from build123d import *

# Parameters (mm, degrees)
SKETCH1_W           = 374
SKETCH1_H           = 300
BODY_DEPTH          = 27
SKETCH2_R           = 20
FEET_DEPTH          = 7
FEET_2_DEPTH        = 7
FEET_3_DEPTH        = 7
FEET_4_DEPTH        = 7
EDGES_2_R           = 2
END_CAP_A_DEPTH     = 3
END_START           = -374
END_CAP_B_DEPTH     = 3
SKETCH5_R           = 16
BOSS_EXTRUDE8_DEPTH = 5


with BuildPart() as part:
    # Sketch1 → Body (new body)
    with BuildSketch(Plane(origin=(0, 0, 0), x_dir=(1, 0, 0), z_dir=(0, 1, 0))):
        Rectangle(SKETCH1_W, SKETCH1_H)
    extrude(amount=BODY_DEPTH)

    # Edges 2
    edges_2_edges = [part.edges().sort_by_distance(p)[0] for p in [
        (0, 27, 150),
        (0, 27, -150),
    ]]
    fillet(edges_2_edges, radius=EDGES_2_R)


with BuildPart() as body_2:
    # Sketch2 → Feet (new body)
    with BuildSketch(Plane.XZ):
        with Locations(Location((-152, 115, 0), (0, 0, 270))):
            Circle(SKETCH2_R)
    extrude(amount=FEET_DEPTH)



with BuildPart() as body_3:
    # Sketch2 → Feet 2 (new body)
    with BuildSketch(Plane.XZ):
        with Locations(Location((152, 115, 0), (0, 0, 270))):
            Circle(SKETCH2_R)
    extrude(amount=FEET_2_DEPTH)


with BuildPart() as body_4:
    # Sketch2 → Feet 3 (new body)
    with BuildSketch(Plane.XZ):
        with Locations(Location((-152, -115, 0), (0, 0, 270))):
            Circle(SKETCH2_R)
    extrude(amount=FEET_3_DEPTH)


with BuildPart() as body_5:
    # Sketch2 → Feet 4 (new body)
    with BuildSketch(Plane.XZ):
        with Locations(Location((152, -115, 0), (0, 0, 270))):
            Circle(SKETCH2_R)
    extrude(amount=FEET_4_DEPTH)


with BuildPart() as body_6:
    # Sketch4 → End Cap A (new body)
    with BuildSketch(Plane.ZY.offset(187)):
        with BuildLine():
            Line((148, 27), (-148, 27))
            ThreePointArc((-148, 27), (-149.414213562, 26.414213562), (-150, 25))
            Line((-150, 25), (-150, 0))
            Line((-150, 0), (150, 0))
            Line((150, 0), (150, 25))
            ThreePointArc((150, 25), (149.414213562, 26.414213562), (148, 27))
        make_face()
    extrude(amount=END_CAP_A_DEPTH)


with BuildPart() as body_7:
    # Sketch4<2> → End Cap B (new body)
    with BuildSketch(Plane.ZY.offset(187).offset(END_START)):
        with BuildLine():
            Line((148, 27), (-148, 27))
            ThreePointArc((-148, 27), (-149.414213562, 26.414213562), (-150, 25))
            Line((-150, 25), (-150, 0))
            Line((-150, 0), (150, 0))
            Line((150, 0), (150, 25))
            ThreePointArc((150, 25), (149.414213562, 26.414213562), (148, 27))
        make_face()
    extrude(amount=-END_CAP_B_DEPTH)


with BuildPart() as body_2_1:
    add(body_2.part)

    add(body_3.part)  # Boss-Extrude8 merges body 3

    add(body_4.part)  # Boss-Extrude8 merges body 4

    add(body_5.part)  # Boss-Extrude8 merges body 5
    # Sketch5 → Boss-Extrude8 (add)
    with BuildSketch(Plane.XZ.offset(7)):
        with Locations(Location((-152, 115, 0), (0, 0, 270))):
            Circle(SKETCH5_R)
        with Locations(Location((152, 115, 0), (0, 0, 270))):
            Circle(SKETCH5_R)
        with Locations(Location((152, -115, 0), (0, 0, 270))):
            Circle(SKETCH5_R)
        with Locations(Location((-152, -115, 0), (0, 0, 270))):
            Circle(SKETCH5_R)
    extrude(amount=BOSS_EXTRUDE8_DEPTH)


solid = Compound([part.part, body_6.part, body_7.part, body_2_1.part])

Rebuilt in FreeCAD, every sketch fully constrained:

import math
import FreeCAD as App
import Part
import Sketcher
from FreeCAD import Vector


def edges_at(feature, points):
    """Names of the edges that pass closest to the given points."""
    edges = feature.Shape.Edges
    near = lambda p: min(range(len(edges)), key=lambda i: edges[i].distToShape(Part.Vertex(*p))[0])
    return sorted({f"Edge{near(p) + 1}" for p in points})

doc = App.newDocument("Part")
body = doc.addObject("PartDesign::Body", "Body")

# Sketch on XZ plane
sketch1 = body.newObject("Sketcher::SketchObject", "Sketch")
sketch1.AttachmentSupport = (doc.getObject("XZ_Plane"), [""])
sketch1.MapMode = "FlatFace"
sketch1.addGeometry(Part.LineSegment(Vector(-187, -150, 0), Vector(-187, 150, 0)), False)
sketch1.addGeometry(Part.LineSegment(Vector(-187, 150, 0), Vector(187, 150, 0)), False)
sketch1.addGeometry(Part.LineSegment(Vector(187, 150, 0), Vector(187, -150, 0)), False)
sketch1.addGeometry(Part.LineSegment(Vector(187, -150, 0), Vector(-187, -150, 0)), False)
sketch1.addConstraint(Sketcher.Constraint("Coincident", 0, 2, 1, 1))
sketch1.addConstraint(Sketcher.Constraint("Coincident", 1, 2, 2, 1))
sketch1.addConstraint(Sketcher.Constraint("Coincident", 2, 2, 3, 1))
sketch1.addConstraint(Sketcher.Constraint("Coincident", 3, 2, 0, 1))
sketch1.addConstraint(Sketcher.Constraint("Vertical", 0))
sketch1.addConstraint(Sketcher.Constraint("Horizontal", 1))
sketch1.addConstraint(Sketcher.Constraint("Vertical", 2))
sketch1.addConstraint(Sketcher.Constraint("Horizontal", 3))
sketch1.addConstraint(Sketcher.Constraint("Symmetric", 0, 2, 2, 2, -1, 1))
sketch1.addConstraint(Sketcher.Constraint("DistanceX", 1, 1, 1, 2, 374.0))
sketch1.addConstraint(Sketcher.Constraint("DistanceY", 0, 1, 0, 2, 300.0))
pad1 = body.newObject("PartDesign::Pad", "Pad")
pad1.Profile = sketch1
pad1.Length = 27
pad1.Reversed = True
doc.recompute()

fillet = body.newObject("PartDesign::Fillet", "Fillet")
fillet.Base = (pad1, edges_at(pad1, [(0, 27, 150), (0, 27, -150)]))
fillet.Radius = 2
body2 = doc.addObject("PartDesign::Body", "Body001")

# Sketch on XZ plane
sketch2 = body2.newObject("Sketcher::SketchObject", "Sketch001")
sketch2.AttachmentSupport = (doc.getObject("XZ_Plane001"), [""])
sketch2.MapMode = "FlatFace"
sketch2.addGeometry(Part.Circle(Vector(-152, 115, 0), Vector(0, 0, 1), 20), False)
sketch2.addConstraint(Sketcher.Constraint("Diameter", 0, 40.0))
sketch2.addConstraint(Sketcher.Constraint("DistanceX", 0, 3, -1, 1, 152.0))
sketch2.addConstraint(Sketcher.Constraint("DistanceY", -1, 1, 0, 3, 115.0))
pad2 = body2.newObject("PartDesign::Pad", "Pad001")
pad2.Profile = sketch2
pad2.Length = 7
body3 = doc.addObject("PartDesign::Body", "Body002")

# Sketch on XZ plane
sketch3 = body3.newObject("Sketcher::SketchObject", "Sketch002")
sketch3.AttachmentSupport = (doc.getObject("XZ_Plane002"), [""])
sketch3.MapMode = "FlatFace"
sketch3.addGeometry(Part.Circle(Vector(152, 115, 0), Vector(0, 0, 1), 20), False)
sketch3.addConstraint(Sketcher.Constraint("Diameter", 0, 40.0))
sketch3.addConstraint(Sketcher.Constraint("DistanceX", -1, 1, 0, 3, 152.0))
sketch3.addConstraint(Sketcher.Constraint("DistanceY", -1, 1, 0, 3, 115.0))
pad3 = body3.newObject("PartDesign::Pad", "Pad002")
pad3.Profile = sketch3
pad3.Length = 7
body4 = doc.addObject("PartDesign::Body", "Body003")

# Sketch on XZ plane
sketch4 = body4.newObject("Sketcher::SketchObject", "Sketch003")
sketch4.AttachmentSupport = (doc.getObject("XZ_Plane003"), [""])
sketch4.MapMode = "FlatFace"
sketch4.addGeometry(Part.Circle(Vector(-152, -115, 0), Vector(0, 0, 1), 20), False)
sketch4.addConstraint(Sketcher.Constraint("Diameter", 0, 40.0))
sketch4.addConstraint(Sketcher.Constraint("DistanceX", 0, 3, -1, 1, 152.0))
sketch4.addConstraint(Sketcher.Constraint("DistanceY", 0, 3, -1, 1, 115.0))
pad4 = body4.newObject("PartDesign::Pad", "Pad003")
pad4.Profile = sketch4
pad4.Length = 7
body5 = doc.addObject("PartDesign::Body", "Body004")

# Sketch on XZ plane
sketch5 = body5.newObject("Sketcher::SketchObject", "Sketch004")
sketch5.AttachmentSupport = (doc.getObject("XZ_Plane004"), [""])
sketch5.MapMode = "FlatFace"
sketch5.addGeometry(Part.Circle(Vector(152, -115, 0), Vector(0, 0, 1), 20), False)
sketch5.addConstraint(Sketcher.Constraint("Diameter", 0, 40.0))
sketch5.addConstraint(Sketcher.Constraint("DistanceX", -1, 1, 0, 3, 152.0))
sketch5.addConstraint(Sketcher.Constraint("DistanceY", 0, 3, -1, 1, 115.0))
pad5 = body5.newObject("PartDesign::Pad", "Pad004")
pad5.Profile = sketch5
pad5.Length = 7
body6 = doc.addObject("PartDesign::Body", "Body005")

# Sketch on YZ plane
sketch6 = body6.newObject("Sketcher::SketchObject", "Sketch005")
sketch6.AttachmentSupport = (doc.getObject("YZ_Plane005"), [""])
sketch6.MapMode = "FlatFace"
sketch6.AttachmentOffset = App.Placement(Vector(0, 0, -187), App.Rotation())
sketch6.addGeometry(Part.LineSegment(Vector(27, 148, 0), Vector(27, -148, 0)), False)
sketch6.addGeometry(Part.ArcOfCircle(Part.Circle(Vector(25, -148, 0), Vector(0, 0, 1), 2), math.radians(-90), math.radians(0)), False)
sketch6.addGeometry(Part.LineSegment(Vector(25, -150, 0), Vector(0, -150, 0)), False)
sketch6.addGeometry(Part.LineSegment(Vector(0, -150, 0), Vector(0, 150, 0)), False)
sketch6.addGeometry(Part.LineSegment(Vector(0, 150, 0), Vector(25, 150, 0)), False)
sketch6.addGeometry(Part.ArcOfCircle(Part.Circle(Vector(25, 148, 0), Vector(0, 0, 1), 2), math.radians(0), math.radians(90)), False)
sketch6.addConstraint(Sketcher.Constraint("Tangent", 0, 2, 1, 2))
sketch6.addConstraint(Sketcher.Constraint("Tangent", 1, 1, 2, 1))
sketch6.addConstraint(Sketcher.Constraint("Coincident", 2, 2, 3, 1))
sketch6.addConstraint(Sketcher.Constraint("Coincident", 3, 2, 4, 1))
sketch6.addConstraint(Sketcher.Constraint("Tangent", 4, 2, 5, 2))
sketch6.addConstraint(Sketcher.Constraint("Tangent", 5, 1, 0, 1))
sketch6.addConstraint(Sketcher.Constraint("Vertical", 0))
sketch6.addConstraint(Sketcher.Constraint("Horizontal", 2))
sketch6.addConstraint(Sketcher.Constraint("Vertical", 3))
sketch6.addConstraint(Sketcher.Constraint("Horizontal", 4))
sketch6.addConstraint(Sketcher.Constraint("Equal", 1, 5))
sketch6.addConstraint(Sketcher.Constraint("Symmetric", 2, 2, 3, 2, -1, 1))
sketch6.addConstraint(Sketcher.Constraint("Radius", 1, 2.0))
sketch6.addConstraint(Sketcher.Constraint("DistanceX", 2, 2, 2, 1, 25.0))
sketch6.addConstraint(Sketcher.Constraint("DistanceY", 0, 2, 0, 1, 296.0))
pad6 = body6.newObject("PartDesign::Pad", "Pad005")
pad6.Profile = sketch6
pad6.Length = 3
pad6.Reversed = True
body7 = doc.addObject("PartDesign::Body", "Body006")

# Sketch on YZ plane
sketch7 = body7.newObject("Sketcher::SketchObject", "Sketch006")
sketch7.AttachmentSupport = (doc.getObject("YZ_Plane006"), [""])
sketch7.MapMode = "FlatFace"
sketch7.AttachmentOffset = App.Placement(Vector(0, 0, 187), App.Rotation())
sketch7.addGeometry(Part.LineSegment(Vector(27, 148, 0), Vector(27, -148, 0)), False)
sketch7.addGeometry(Part.ArcOfCircle(Part.Circle(Vector(25, -148, 0), Vector(0, 0, 1), 2), math.radians(-90), math.radians(0)), False)
sketch7.addGeometry(Part.LineSegment(Vector(25, -150, 0), Vector(0, -150, 0)), False)
sketch7.addGeometry(Part.LineSegment(Vector(0, -150, 0), Vector(0, 150, 0)), False)
sketch7.addGeometry(Part.LineSegment(Vector(0, 150, 0), Vector(25, 150, 0)), False)
sketch7.addGeometry(Part.ArcOfCircle(Part.Circle(Vector(25, 148, 0), Vector(0, 0, 1), 2), math.radians(0), math.radians(90)), False)
sketch7.addConstraint(Sketcher.Constraint("Tangent", 0, 2, 1, 2))
sketch7.addConstraint(Sketcher.Constraint("Tangent", 1, 1, 2, 1))
sketch7.addConstraint(Sketcher.Constraint("Coincident", 2, 2, 3, 1))
sketch7.addConstraint(Sketcher.Constraint("Coincident", 3, 2, 4, 1))
sketch7.addConstraint(Sketcher.Constraint("Tangent", 4, 2, 5, 2))
sketch7.addConstraint(Sketcher.Constraint("Tangent", 5, 1, 0, 1))
sketch7.addConstraint(Sketcher.Constraint("Vertical", 0))
sketch7.addConstraint(Sketcher.Constraint("Horizontal", 2))
sketch7.addConstraint(Sketcher.Constraint("Vertical", 3))
sketch7.addConstraint(Sketcher.Constraint("Horizontal", 4))
sketch7.addConstraint(Sketcher.Constraint("Equal", 1, 5))
sketch7.addConstraint(Sketcher.Constraint("Symmetric", 2, 2, 3, 2, -1, 1))
sketch7.addConstraint(Sketcher.Constraint("Radius", 1, 2.0))
sketch7.addConstraint(Sketcher.Constraint("DistanceX", 2, 2, 2, 1, 25.0))
sketch7.addConstraint(Sketcher.Constraint("DistanceY", 0, 2, 0, 1, 296.0))
pad7 = body7.newObject("PartDesign::Pad", "Pad006")
pad7.Profile = sketch7
pad7.Length = 3
body2.AllowCompound = True
doc.recompute()

boolean = body2.newObject("PartDesign::Boolean", "Boolean")
boolean.Type = "Fuse"
boolean.addObjects([body3])
doc.recompute()

boolean2 = body2.newObject("PartDesign::Boolean", "Boolean001")
boolean2.Type = "Fuse"
boolean2.addObjects([body4])
doc.recompute()

boolean3 = body2.newObject("PartDesign::Boolean", "Boolean002")
boolean3.Type = "Fuse"
boolean3.addObjects([body5])

# Sketch on XZ plane
sketch8 = body2.newObject("Sketcher::SketchObject", "Sketch007")
sketch8.AttachmentSupport = (doc.getObject("XZ_Plane001"), [""])
sketch8.MapMode = "FlatFace"
sketch8.AttachmentOffset = App.Placement(Vector(0, 0, 7), App.Rotation())
sketch8.addGeometry(Part.Circle(Vector(-152, 115, 0), Vector(0, 0, 1), 16), False)
sketch8.addGeometry(Part.Circle(Vector(152, 115, 0), Vector(0, 0, 1), 16), False)
sketch8.addGeometry(Part.Circle(Vector(152, -115, 0), Vector(0, 0, 1), 16), False)
sketch8.addGeometry(Part.Circle(Vector(-152, -115, 0), Vector(0, 0, 1), 16), False)
sketch8.addConstraint(Sketcher.Constraint("Equal", 0, 1))
sketch8.addConstraint(Sketcher.Constraint("Equal", 1, 2))
sketch8.addConstraint(Sketcher.Constraint("Equal", 2, 3))
sketch8.addConstraint(Sketcher.Constraint("Symmetric", 0, 3, 2, 3, -1, 1))
sketch8.addConstraint(Sketcher.Constraint("Symmetric", 1, 3, 3, 3, -1, 1))
sketch8.addConstraint(Sketcher.Constraint("Symmetric", 0, 3, 1, 3, -2))
sketch8.addConstraint(Sketcher.Constraint("Diameter", 0, 32.0))
sketch8.addConstraint(Sketcher.Constraint("DistanceX", 0, 3, -1, 1, 152.0))
sketch8.addConstraint(Sketcher.Constraint("DistanceY", -1, 1, 0, 3, 115.0))
pad8 = body2.newObject("PartDesign::Pad", "Pad007")
pad8.Profile = sketch8
pad8.Length = 5

doc.recompute()
